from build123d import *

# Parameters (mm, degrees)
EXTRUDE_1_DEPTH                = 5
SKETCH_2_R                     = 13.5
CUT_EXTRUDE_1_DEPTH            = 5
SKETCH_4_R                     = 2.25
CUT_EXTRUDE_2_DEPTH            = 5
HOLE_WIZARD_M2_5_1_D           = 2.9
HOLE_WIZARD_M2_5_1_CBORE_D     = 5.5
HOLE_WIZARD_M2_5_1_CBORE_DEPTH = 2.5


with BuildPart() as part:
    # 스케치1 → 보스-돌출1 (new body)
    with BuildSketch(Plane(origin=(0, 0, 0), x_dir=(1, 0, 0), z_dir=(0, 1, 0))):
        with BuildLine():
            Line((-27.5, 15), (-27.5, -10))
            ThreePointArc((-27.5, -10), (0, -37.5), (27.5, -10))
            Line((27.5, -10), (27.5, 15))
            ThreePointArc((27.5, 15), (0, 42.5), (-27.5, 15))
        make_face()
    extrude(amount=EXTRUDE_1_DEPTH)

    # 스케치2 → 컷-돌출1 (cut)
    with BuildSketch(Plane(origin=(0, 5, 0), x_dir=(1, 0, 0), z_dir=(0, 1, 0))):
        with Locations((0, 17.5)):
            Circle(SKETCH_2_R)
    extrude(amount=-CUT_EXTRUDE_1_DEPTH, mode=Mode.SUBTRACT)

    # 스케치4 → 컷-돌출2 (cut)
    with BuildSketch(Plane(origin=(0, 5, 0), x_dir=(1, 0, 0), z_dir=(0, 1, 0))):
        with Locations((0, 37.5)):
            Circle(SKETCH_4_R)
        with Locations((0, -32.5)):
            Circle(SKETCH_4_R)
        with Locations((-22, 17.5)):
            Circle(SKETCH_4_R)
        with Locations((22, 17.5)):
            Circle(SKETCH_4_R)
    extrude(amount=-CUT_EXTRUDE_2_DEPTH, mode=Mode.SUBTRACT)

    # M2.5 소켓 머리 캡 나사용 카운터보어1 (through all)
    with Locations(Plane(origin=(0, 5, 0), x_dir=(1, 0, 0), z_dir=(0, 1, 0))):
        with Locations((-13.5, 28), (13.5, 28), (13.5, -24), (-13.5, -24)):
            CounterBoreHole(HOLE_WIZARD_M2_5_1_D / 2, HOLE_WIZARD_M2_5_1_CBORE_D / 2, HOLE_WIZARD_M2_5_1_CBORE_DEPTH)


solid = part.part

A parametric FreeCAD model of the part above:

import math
import FreeCAD as App
import Part
import Sketcher
from FreeCAD import Vector

doc = App.newDocument("Part")
body = doc.addObject("PartDesign::Body", "Body")

# Sketch on XZ plane
sketch1 = body.newObject("Sketcher::SketchObject", "Sketch")
sketch1.AttachmentSupport = (doc.getObject("XZ_Plane"), [""])
sketch1.MapMode = "FlatFace"
sketch1.addGeometry([
    Part.LineSegment(Vector(-28, -15, 0), Vector(-28, 10, 0)),
    Part.ArcOfCircle(Part.Circle(Vector(0, 10, 0), Vector(0, 0, 1), 28), math.radians(0), math.radians(180)),
    Part.LineSegment(Vector(28, 10, 0), Vector(28, -15, 0)),
    Part.ArcOfCircle(Part.Circle(Vector(0, -15, 0), Vector(0, 0, 1), 28), math.radians(180), math.radians(360)),
], False)
sketch1.addConstraint([
    Sketcher.Constraint("Tangent", 0, 2, 1, 2),
    Sketcher.Constraint("Tangent", 1, 1, 2, 1),
    Sketcher.Constraint("Tangent", 2, 2, 3, 2),
    Sketcher.Constraint("Tangent", 3, 1, 0, 1),
    Sketcher.Constraint("Vertical", 0),
    Sketcher.Constraint("Vertical", 2),
    Sketcher.Constraint("PointOnObject", 1, 3, -2),
    Sketcher.Constraint("Radius", 1, 27.5),
    Sketcher.Constraint("DistanceY", 0, 1, 0, 2, 25.0),
    Sketcher.Constraint("DistanceY", -1, 1, 1, 3, 10.0),
])
pad1 = body.newObject("PartDesign::Pad", "Pad")
pad1.Profile = sketch1
pad1.Length = 5
pad1.Reversed = True

# Sketch on XZ plane
sketch2 = body.newObject("Sketcher::SketchObject", "Sketch001")
sketch2.AttachmentSupport = (doc.getObject("XZ_Plane"), [""])
sketch2.MapMode = "FlatFace"
sketch2.AttachmentOffset = App.Placement(Vector(0, 0, -5), App.Rotation())
sketch2.addGeometry(Part.Circle(Vector(0, -18, 0), Vector(0, 0, 1), 14), False)
sketch2.addConstraint([
    Sketcher.Constraint("PointOnObject", 0, 3, -2),
    Sketcher.Constraint("Diameter", 0, 27.0),
    Sketcher.Constraint("DistanceY", 0, 3, -1, 1, 17.5),
])
pocket1 = body.newObject("PartDesign::Pocket", "Pocket")
pocket1.Profile = sketch2
pocket1.Length = 5
pocket1.Reversed = True

# Sketch on XZ plane
sketch3 = body.newObject("Sketcher::SketchObject", "Sketch002")
sketch3.AttachmentSupport = (doc.getObject("XZ_Plane"), [""])
sketch3.MapMode = "FlatFace"
sketch3.AttachmentOffset = App.Placement(Vector(0, 0, -5), App.Rotation())
sketch3.addGeometry([
    Part.Circle(Vector(0, -37.5, 0), Vector(0, 0, 1), 2.2),
    Part.Circle(Vector(0, 32.5, 0), Vector(0, 0, 1), 2.2),
    Part.Circle(Vector(-22, -17.5, 0), Vector(0, 0, 1), 2.2),
    Part.Circle(Vector(22, -17.5, 0), Vector(0, 0, 1), 2.2),
], False)
sketch3.addConstraint([
    Sketcher.Constraint("Equal", 0, 1),
    Sketcher.Constraint("Equal", 1, 2),
    Sketcher.Constraint("Equal", 2, 3),
    Sketcher.Constraint("Symmetric", 2, 3, 3, 3, -2),
    Sketcher.Constraint("PointOnObject", 0, 3, -2),
    Sketcher.Constraint("PointOnObject", 1, 3, -2),
    Sketcher.Constraint("Diameter", 0, 4.5),
    Sketcher.Constraint("DistanceX", 2, 3, -1, 1, 22.0),
    Sketcher.Constraint("DistanceY", 0, 3, 1, 3, 70.0),
    Sketcher.Constraint("DistanceY", 0, 3, 2, 3, 20.0),
    Sketcher.Constraint("DistanceY", 0, 3, -1, 1, 37.5),
])
pocket2 = body.newObject("PartDesign::Pocket", "Pocket001")
pocket2.Profile = sketch3
pocket2.Length = 5
pocket2.Reversed = True

# Sketch on XZ plane
sketch4 = body.newObject("Sketcher::SketchObject", "Sketch003")
sketch4.AttachmentSupport = (doc.getObject("XZ_Plane"), [""])
sketch4.MapMode = "FlatFace"
sketch4.AttachmentOffset = App.Placement(Vector(0, 0, -5), App.Rotation())
sketch4.addGeometry([
    Part.Circle(Vector(-13.5, -28, 0), Vector(0, 0, 1), 1.4),
    Part.Circle(Vector(13.5, -28, 0), Vector(0, 0, 1), 1.4),
    Part.Circle(Vector(13.5, 24, 0), Vector(0, 0, 1), 1.4),
    Part.Circle(Vector(-13.5, 24, 0), Vector(0, 0, 1), 1.4),
], False)
sketch4.addConstraint([
    Sketcher.Constraint("Equal", 0, 1),
    Sketcher.Constraint("Equal", 1, 2),
    Sketcher.Constraint("Equal", 2, 3),
    Sketcher.Constraint("Symmetric", 0, 3, 1, 3, -2),
    Sketcher.Constraint("Symmetric", 2, 3, 3, 3, -2),
    Sketcher.Constraint("Vertical", 1, 3, 2, 3),
    Sketcher.Constraint("Diameter", 0, 2.9),
    Sketcher.Constraint("DistanceY", 0, 3, -1, 1, 28.0),
    Sketcher.Constraint("DistanceY", -1, 1, 2, 3, 24.0),
    Sketcher.Constraint("DistanceX", 0, 3, 1, 3, 27.0),
])
doc.recompute()
hole = body.newObject("PartDesign::Hole", "Hole")
hole.Profile = sketch4
hole.ThreadType = "None"
hole.Diameter = 2.9
hole.DepthType = "ThroughAll"
hole.HoleCutType = "Counterbore"
hole.HoleCutDiameter = 5.5
hole.HoleCutDepth = 2.5
hole.Reversed = True

doc.recompute()
